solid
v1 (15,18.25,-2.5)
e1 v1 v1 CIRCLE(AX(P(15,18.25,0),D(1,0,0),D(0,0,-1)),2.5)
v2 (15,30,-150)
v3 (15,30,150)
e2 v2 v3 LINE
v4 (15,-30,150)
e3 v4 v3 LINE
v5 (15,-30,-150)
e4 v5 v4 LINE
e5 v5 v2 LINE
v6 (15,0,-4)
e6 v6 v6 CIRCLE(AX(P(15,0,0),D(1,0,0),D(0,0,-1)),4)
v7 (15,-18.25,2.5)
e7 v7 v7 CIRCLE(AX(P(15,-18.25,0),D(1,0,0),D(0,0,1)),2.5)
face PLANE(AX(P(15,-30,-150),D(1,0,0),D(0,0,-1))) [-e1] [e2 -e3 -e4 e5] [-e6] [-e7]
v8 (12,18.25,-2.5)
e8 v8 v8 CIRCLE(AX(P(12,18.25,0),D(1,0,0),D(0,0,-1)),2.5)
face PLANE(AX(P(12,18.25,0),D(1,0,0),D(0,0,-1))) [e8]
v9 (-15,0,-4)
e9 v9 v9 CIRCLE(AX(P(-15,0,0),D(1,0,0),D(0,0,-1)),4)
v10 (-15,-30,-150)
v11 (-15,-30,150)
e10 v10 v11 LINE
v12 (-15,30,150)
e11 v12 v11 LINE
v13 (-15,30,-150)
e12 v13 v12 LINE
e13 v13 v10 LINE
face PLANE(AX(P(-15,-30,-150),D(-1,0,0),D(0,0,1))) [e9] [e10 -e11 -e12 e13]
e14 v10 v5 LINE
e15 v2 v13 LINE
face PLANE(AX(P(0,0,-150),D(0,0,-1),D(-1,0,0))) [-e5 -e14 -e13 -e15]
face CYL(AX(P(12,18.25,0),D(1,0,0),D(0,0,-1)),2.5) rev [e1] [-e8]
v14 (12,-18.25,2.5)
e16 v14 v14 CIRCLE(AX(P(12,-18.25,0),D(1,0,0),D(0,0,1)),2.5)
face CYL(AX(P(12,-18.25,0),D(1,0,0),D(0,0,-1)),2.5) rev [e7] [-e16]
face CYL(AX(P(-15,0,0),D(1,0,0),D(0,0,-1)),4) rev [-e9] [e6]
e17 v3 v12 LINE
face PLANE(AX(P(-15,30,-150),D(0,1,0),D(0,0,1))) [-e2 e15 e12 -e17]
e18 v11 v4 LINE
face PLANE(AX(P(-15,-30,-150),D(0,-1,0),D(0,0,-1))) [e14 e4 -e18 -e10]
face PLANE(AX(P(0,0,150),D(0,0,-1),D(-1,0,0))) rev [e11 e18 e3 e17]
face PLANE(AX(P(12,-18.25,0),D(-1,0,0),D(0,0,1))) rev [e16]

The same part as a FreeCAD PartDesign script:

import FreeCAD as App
import Part
import Sketcher
from FreeCAD import Vector


def add_polygon(sketch, points):
    """Adds a closed chain of lines whose ends are joined by coincident constraints."""
    first, n = sketch.GeometryCount, len(points)
    for a, b in zip(points, points[1:] + points[:1]):
        sketch.addGeometry(Part.LineSegment(App.Vector(*a, 0), App.Vector(*b, 0)), False)
    for i in range(n):
        sketch.addConstraint(Sketcher.Constraint("Coincident", first + i, 2, first + (i + 1) % n, 1))

doc = App.newDocument("Part")
body = doc.addObject("PartDesign::Body", "Body")

# Sketch on XY plane
sketch1 = body.newObject("Sketcher::SketchObject", "Sketch")
sketch1.AttachmentSupport = (doc.getObject("XY_Plane"), [""])
sketch1.MapMode = "FlatFace"
add_polygon(sketch1, [(-15, 30), (-15, -30), (15, -30), (15, 30)])  # lines 0-3
sketch1.addConstraint([
    Sketcher.Constraint("Vertical", 0),
    Sketcher.Constraint("Horizontal", 1),
    Sketcher.Constraint("Vertical", 2),
    Sketcher.Constraint("Horizontal", 3),
    Sketcher.Constraint("Symmetric", 0, 2, 2, 2, -1, 1),
    Sketcher.Constraint("DistanceX", 1, 1, 1, 2, 30.0),
    Sketcher.Constraint("DistanceY", 0, 2, 0, 1, 60.0),
])
pad1 = body.newObject("PartDesign::Pad", "Pad")
pad1.Profile = sketch1
pad1.Type = "TwoLengths"
pad1.Length = 150
pad1.Length2 = 150

# Sketch on YZ plane
sketch2 = body.newObject("Sketcher::SketchObject", "Sketch001")
sketch2.AttachmentSupport = (doc.getObject("YZ_Plane"), [""])
sketch2.MapMode = "FlatFace"
sketch2.AttachmentOffset = App.Placement(Vector(0, 0, 15), App.Rotation())
sketch2.addGeometry([
    Part.Circle(Vector(18.2, 0, 0), Vector(0, 0, 1), 2.5),
    Part.Circle(Vector(-18.2, 0, 0), Vector(0, 0, 1), 2.5),
], False)
sketch2.addConstraint([
    Sketcher.Constraint("Equal", 0, 1),
    Sketcher.Constraint("Symmetric", 0, 3, 1, 3, -1, 1),
    Sketcher.Constraint("PointOnObject", 0, 3, -1),
    Sketcher.Constraint("Diameter", 0, 5.0),
    Sketcher.Constraint("DistanceX", 1, 3, 0, 3, 36.5),
])
pocket1 = body.newObject("PartDesign::Pocket", "Pocket")
pocket1.Profile = sketch2
pocket1.Length = 3

# Sketch on YZ plane
sketch3 = body.newObject("Sketcher::SketchObject", "Sketch002")
sketch3.AttachmentSupport = (doc.getObject("YZ_Plane"), [""])
sketch3.MapMode = "FlatFace"
sketch3.AttachmentOffset = App.Placement(Vector(0, 0, 15), App.Rotation())
sketch3.addGeometry(Part.Circle(Vector(0, 0, 0), Vector(0, 0, 1), 4), False)
sketch3.addConstraint([
    Sketcher.Constraint("Coincident", 0, 3, -1, 1),
    Sketcher.Constraint("Diameter", 0, 8.0),
])
pocket2 = body.newObject("PartDesign::Pocket", "Pocket001")
pocket2.Profile = sketch3
pocket2.Type = "ThroughAll"

doc.recompute()
